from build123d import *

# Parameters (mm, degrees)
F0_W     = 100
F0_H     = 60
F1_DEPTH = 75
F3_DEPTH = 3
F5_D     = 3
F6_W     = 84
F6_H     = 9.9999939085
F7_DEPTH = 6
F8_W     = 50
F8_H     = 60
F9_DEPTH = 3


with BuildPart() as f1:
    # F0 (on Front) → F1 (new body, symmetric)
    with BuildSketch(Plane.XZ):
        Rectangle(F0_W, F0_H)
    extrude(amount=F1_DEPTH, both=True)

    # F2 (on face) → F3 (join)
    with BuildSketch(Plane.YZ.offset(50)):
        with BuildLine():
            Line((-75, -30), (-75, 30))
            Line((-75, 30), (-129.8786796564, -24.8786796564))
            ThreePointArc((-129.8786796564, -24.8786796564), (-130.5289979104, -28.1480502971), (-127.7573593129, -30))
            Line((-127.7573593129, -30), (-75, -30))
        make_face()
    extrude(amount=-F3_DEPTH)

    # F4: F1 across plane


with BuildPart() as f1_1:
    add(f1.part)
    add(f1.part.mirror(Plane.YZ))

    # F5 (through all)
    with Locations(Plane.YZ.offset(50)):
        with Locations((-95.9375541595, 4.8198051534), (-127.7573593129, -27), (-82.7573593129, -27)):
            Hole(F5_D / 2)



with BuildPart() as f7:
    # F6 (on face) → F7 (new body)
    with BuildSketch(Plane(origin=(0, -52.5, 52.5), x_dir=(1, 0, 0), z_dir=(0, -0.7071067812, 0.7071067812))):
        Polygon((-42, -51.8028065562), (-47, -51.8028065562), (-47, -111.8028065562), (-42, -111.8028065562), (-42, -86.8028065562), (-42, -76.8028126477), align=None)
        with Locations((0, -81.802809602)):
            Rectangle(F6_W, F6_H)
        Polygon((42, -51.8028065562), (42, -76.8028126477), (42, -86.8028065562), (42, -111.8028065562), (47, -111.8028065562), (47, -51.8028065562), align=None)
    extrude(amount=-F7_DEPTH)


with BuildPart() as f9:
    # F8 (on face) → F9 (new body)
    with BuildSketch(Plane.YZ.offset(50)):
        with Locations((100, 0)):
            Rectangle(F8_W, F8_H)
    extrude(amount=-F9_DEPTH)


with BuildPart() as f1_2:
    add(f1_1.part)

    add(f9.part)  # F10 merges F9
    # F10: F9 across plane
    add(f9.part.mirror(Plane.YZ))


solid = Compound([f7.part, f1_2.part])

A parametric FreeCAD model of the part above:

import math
import FreeCAD as App
import Part
import Sketcher

V = App.Vector
Q = App.Units.Quantity

doc = App.newDocument("Part")
body = doc.addObject("PartDesign::Body", "Body")

# Sketch on XZ plane
sketch1 = body.newObject("Sketcher::SketchObject", "Sketch")
sketch1.AttachmentSupport = (doc.getObject("XZ_Plane"), [""])
sketch1.MapMode = "FlatFace"
sketch1.addGeometry(Part.LineSegment(V(-50, 30, 0), V(-50, -30, 0)), False)
sketch1.addGeometry(Part.LineSegment(V(-50, -30, 0), V(50, -30, 0)), False)
sketch1.addGeometry(Part.LineSegment(V(50, -30, 0), V(50, 30, 0)), False)
sketch1.addGeometry(Part.LineSegment(V(50, 30, 0), V(-50, 30, 0)), False)
sketch1.addConstraint(Sketcher.Constraint("Coincident", 0, 2, 1, 1))
sketch1.addConstraint(Sketcher.Constraint("Coincident", 1, 2, 2, 1))
sketch1.addConstraint(Sketcher.Constraint("Coincident", 2, 2, 3, 1))
sketch1.addConstraint(Sketcher.Constraint("Coincident", 3, 2, 0, 1))
sketch1.addConstraint(Sketcher.Constraint("Vertical", 0))
sketch1.addConstraint(Sketcher.Constraint("Horizontal", 1))
sketch1.addConstraint(Sketcher.Constraint("Vertical", 2))
sketch1.addConstraint(Sketcher.Constraint("Horizontal", 3))
sketch1.addConstraint(Sketcher.Constraint("Symmetric", 0, 2, 2, 2, -1, 1))
sketch1.addConstraint(Sketcher.Constraint("DistanceX", 1, 1, 1, 2, 100.0))
sketch1.addConstraint(Sketcher.Constraint("DistanceY", 0, 2, 0, 1, 60.0))
pad1 = body.newObject("PartDesign::Pad", "Pad")
pad1.Profile = sketch1
pad1.Length = 150
pad1.Midplane = True

# Sketch on YZ plane
sketch2 = body.newObject("Sketcher::SketchObject", "Sketch001")
sketch2.AttachmentSupport = (doc.getObject("YZ_Plane"), [""])
sketch2.MapMode = "FlatFace"
sketch2.AttachmentOffset = App.Placement(V(0, 0, 50), App.Rotation())
sketch2.addGeometry(Part.LineSegment(V(-75, -30, 0), V(-75, 30, 0)), False)
sketch2.addGeometry(Part.LineSegment(V(-75, 30, 0), V(-129.9, -24.9, 0)), False)
sketch2.addGeometry(Part.ArcOfCircle(Part.Circle(V(-127.8, -27, 0), V(0, 0, 1), 3), math.radians(135), math.radians(270)), False)
sketch2.addGeometry(Part.LineSegment(V(-127.8, -30, 0), V(-75, -30, 0)), False)
sketch2.addConstraint(Sketcher.Constraint("Coincident", 0, 2, 1, 1))
sketch2.addConstraint(Sketcher.Constraint("Tangent", 1, 2, 2, 1))
sketch2.addConstraint(Sketcher.Constraint("Tangent", 2, 2, 3, 1))
sketch2.addConstraint(Sketcher.Constraint("Coincident", 3, 2, 0, 1))
sketch2.addConstraint(Sketcher.Constraint("Vertical", 0))
sketch2.addConstraint(Sketcher.Constraint("Horizontal", 3))
sketch2.addConstraint(Sketcher.Constraint("Radius", 2, 3.0))
sketch2.addConstraint(Sketcher.Constraint("DistanceY", 0, 1, 0, 2, 60.0))
sketch2.addConstraint(Sketcher.Constraint("Angle", 1, Q("-135 deg")))
sketch2.addConstraint(Sketcher.Constraint("DistanceY", 2, 3, -1, 1, 27.0))
sketch2.addConstraint(Sketcher.Constraint("DistanceX", 0, 2, -1, 1, 75.0))
pad2 = body.newObject("PartDesign::Pad", "Pad001")
pad2.Profile = sketch2
pad2.Length = 3
pad2.Reversed = True
body2 = doc.addObject("PartDesign::Body", "Body001")
doc.recompute()

body2.BaseFeature = body
doc.recompute()

mirroring = doc.addObject("Part::Mirroring", "Mirroring")
mirroring.Source = body
mirroring.Base = V(0, 0, 0)
mirroring.Normal = V(1, 0, 0)
body3 = doc.addObject("PartDesign::Body", "Body002")
body3.BaseFeature = mirroring
boolean = body2.newObject("PartDesign::Boolean", "Boolean")
boolean.Type = "Fuse"
boolean.addObjects([body3])
doc.recompute()

# Sketch on YZ plane
sketch3 = body2.newObject("Sketcher::SketchObject", "Sketch002")
sketch3.AttachmentSupport = (doc.getObject("YZ_Plane001"), [""])
sketch3.MapMode = "FlatFace"
sketch3.AttachmentOffset = App.Placement(V(0, 0, 50), App.Rotation())
sketch3.addGeometry(Part.Circle(V(-95.9, 4.8, 0), V(0, 0, 1), 1.5), False)
sketch3.addGeometry(Part.Circle(V(-127.8, -27, 0), V(0, 0, 1), 1.5), False)
sketch3.addGeometry(Part.Circle(V(-82.8, -27, 0), V(0, 0, 1), 1.5), False)
sketch3.addConstraint(Sketcher.Constraint("Equal", 0, 1))
sketch3.addConstraint(Sketcher.Constraint("Equal", 1, 2))
sketch3.addConstraint(Sketcher.Constraint("Horizontal", 1, 3, 2, 3))
sketch3.addConstraint(Sketcher.Constraint("Diameter", 0, 3.0))
sketch3.addConstraint(Sketcher.Constraint("DistanceY", 1, 3, -1, 1, 27.0))
sketch3.addConstraint(Sketcher.Constraint("DistanceX", 1, 3, 2, 3, 45.0))
sketch3.addConstraint(Sketcher.Constraint("DistanceX", 1, 3, -1, 1, 127.757359))
sketch3.addConstraint(Sketcher.Constraint("DistanceX", 0, 3, -1, 1, 95.937554))
sketch3.addConstraint(Sketcher.Constraint("DistanceY", -1, 1, 0, 3, 4.819805))
doc.recompute()
hole = body2.newObject("PartDesign::Hole", "Hole")
hole.Profile = sketch3
hole.ThreadType = "None"
hole.Diameter = 3
hole.DepthType = "ThroughAll"
body4 = doc.addObject("PartDesign::Body", "Body003")

# Sketch on an angled plane
sketch4 = body4.newObject("Sketcher::SketchObject", "Sketch003")
sketch4.Placement = App.Placement(V(0, -52.5, 52.5), App.Rotation(V(1, 0, 0), V(0, 0.707106781, 0.707106781), V(0, -0.707106781, 0.707106781), "ZXY"))
sketch4.addGeometry(Part.LineSegment(V(-42, -52, 0), V(-47, -52, 0)), False)
sketch4.addGeometry(Part.LineSegment(V(-47, -52, 0), V(-47, -112, 0)), False)
sketch4.addGeometry(Part.LineSegment(V(-47, -112, 0), V(-42, -112, 0)), False)
sketch4.addGeometry(Part.LineSegment(V(-42, -112, 0), V(-42, -87, 0)), False)
sketch4.addGeometry(Part.LineSegment(V(-42, -87, 0), V(42, -87, 0)), False)
sketch4.addGeometry(Part.LineSegment(V(42, -87, 0), V(42, -112, 0)), False)
sketch4.addGeometry(Part.LineSegment(V(42, -112, 0), V(47, -112, 0)), False)
sketch4.addGeometry(Part.LineSegment(V(47, -112, 0), V(47, -52, 0)), False)
sketch4.addGeometry(Part.LineSegment(V(47, -52, 0), V(42, -52, 0)), False)
sketch4.addGeometry(Part.LineSegment(V(42, -52, 0), V(42, -77, 0)), False)
sketch4.addGeometry(Part.LineSegment(V(42, -77, 0), V(-42, -77, 0)), False)
sketch4.addGeometry(Part.LineSegment(V(-42, -77, 0), V(-42, -52, 0)), False)
sketch4.addConstraint(Sketcher.Constraint("Coincident", 0, 2, 1, 1))
sketch4.addConstraint(Sketcher.Constraint("Coincident", 1, 2, 2, 1))
sketch4.addConstraint(Sketcher.Constraint("Coincident", 2, 2, 3, 1))
sketch4.addConstraint(Sketcher.Constraint("Coincident", 3, 2, 4, 1))
sketch4.addConstraint(Sketcher.Constraint("Coincident", 4, 2, 5, 1))
sketch4.addConstraint(Sketcher.Constraint("Coincident", 5, 2, 6, 1))
sketch4.addConstraint(Sketcher.Constraint("Coincident", 6, 2, 7, 1))
sketch4.addConstraint(Sketcher.Constraint("Coincident", 7, 2, 8, 1))
sketch4.addConstraint(Sketcher.Constraint("Coincident", 8, 2, 9, 1))
sketch4.addConstraint(Sketcher.Constraint("Coincident", 9, 2, 10, 1))
sketch4.addConstraint(Sketcher.Constraint("Coincident", 10, 2, 11, 1))
sketch4.addConstraint(Sketcher.Constraint("Coincident", 11, 2, 0, 1))
sketch4.addConstraint(Sketcher.Constraint("Horizontal", 0))
sketch4.addConstraint(Sketcher.Constraint("Vertical", 1))
sketch4.addConstraint(Sketcher.Constraint("Horizontal", 2))
sketch4.addConstraint(Sketcher.Constraint("Vertical", 3))
sketch4.addConstraint(Sketcher.Constraint("Horizontal", 4))
sketch4.addConstraint(Sketcher.Constraint("Vertical", 5))
sketch4.addConstraint(Sketcher.Constraint("Horizontal", 6))
sketch4.addConstraint(Sketcher.Constraint("Vertical", 7))
sketch4.addConstraint(Sketcher.Constraint("Horizontal", 8))
sketch4.addConstraint(Sketcher.Constraint("Vertical", 9))
sketch4.addConstraint(Sketcher.Constraint("Horizontal", 10))
sketch4.addConstraint(Sketcher.Constraint("Vertical", 11))
sketch4.addConstraint(Sketcher.Constraint("Symmetric", 2, 2, 5, 2, -2))
sketch4.addConstraint(Sketcher.Constraint("Symmetric", 0, 2, 7, 2, -2))
sketch4.addConstraint(Sketcher.Constraint("Vertical", 5, 2, 8, 2))
sketch4.addConstraint(Sketcher.Constraint("Vertical", 3, 2, 10, 2))
sketch4.addConstraint(Sketcher.Constraint("DistanceX", 0, 2, 0, 1, 5.0))
sketch4.addConstraint(Sketcher.Constraint("DistanceX", 4, 1, 4, 2, 84.0))
sketch4.addConstraint(Sketcher.Constraint("DistanceY", 1, 2, 1, 1, 60.0))
sketch4.addConstraint(Sketcher.Constraint("DistanceY", 3, 1, 3, 2, 25.0))
sketch4.addConstraint(Sketcher.Constraint("DistanceY", 9, 2, 9, 1, 25.000006))
sketch4.addConstraint(Sketcher.Constraint("DistanceY", 0, 2, -1, 1, 51.802807))
pad3 = body4.newObject("PartDesign::Pad", "Pad002")
pad3.Profile = sketch4
pad3.Length = 6
pad3.Reversed = True
body5 = doc.addObject("PartDesign::Body", "Body004")

# Sketch on YZ plane
sketch5 = body5.newObject("Sketcher::SketchObject", "Sketch004")
sketch5.AttachmentSupport = (doc.getObject("YZ_Plane004"), [""])
sketch5.MapMode = "FlatFace"
sketch5.AttachmentOffset = App.Placement(V(0, 0, 50), App.Rotation())
sketch5.addGeometry(Part.LineSegment(V(75, 30, 0), V(75, -30, 0)), False)
sketch5.addGeometry(Part.LineSegment(V(75, -30, 0), V(125, -30, 0)), False)
sketch5.addGeometry(Part.LineSegment(V(125, -30, 0), V(125, 30, 0)), False)
sketch5.addGeometry(Part.LineSegment(V(125, 30, 0), V(75, 30, 0)), False)
sketch5.addConstraint(Sketcher.Constraint("Coincident", 0, 2, 1, 1))
sketch5.addConstraint(Sketcher.Constraint("Coincident", 1, 2, 2, 1))
sketch5.addConstraint(Sketcher.Constraint("Coincident", 2, 2, 3, 1))
sketch5.addConstraint(Sketcher.Constraint("Coincident", 3, 2, 0, 1))
sketch5.addConstraint(Sketcher.Constraint("Vertical", 0))
sketch5.addConstraint(Sketcher.Constraint("Horizontal", 1))
sketch5.addConstraint(Sketcher.Constraint("Vertical", 2))
sketch5.addConstraint(Sketcher.Constraint("Horizontal", 3))
sketch5.addConstraint(Sketcher.Constraint("DistanceX", 1, 1, 1, 2, 50.0))
sketch5.addConstraint(Sketcher.Constraint("DistanceY", 0, 2, 0, 1, 60.0))
sketch5.addConstraint(Sketcher.Constraint("DistanceX", -1, 1, 0, 2, 75.0))
sketch5.addConstraint(Sketcher.Constraint("DistanceY", 0, 2, -1, 1, 30.0))
pad4 = body5.newObject("PartDesign::Pad", "Pad003")
pad4.Profile = sketch5
pad4.Length = 3
pad4.Reversed = True
doc.recompute()

body6 = doc.addObject("PartDesign::Body", "Body005")
body6.BaseFeature = body5
boolean2 = body2.newObject("PartDesign::Boolean", "Boolean001")
boolean2.Type = "Fuse"
boolean2.addObjects([body6])
doc.recompute()

mirroring2 = doc.addObject("Part::Mirroring", "Mirroring001")
mirroring2.Source = body5
mirroring2.Base = V(0, 0, 0)
mirroring2.Normal = V(1, 0, 0)
body7 = doc.addObject("PartDesign::Body", "Body006")
body7.BaseFeature = mirroring2
boolean3 = body2.newObject("PartDesign::Boolean", "Boolean002")
boolean3.Type = "Fuse"
boolean3.addObjects([body7])
doc.recompute()
mirroring.Visibility = False
mirroring2.Visibility = False

doc.recompute()
